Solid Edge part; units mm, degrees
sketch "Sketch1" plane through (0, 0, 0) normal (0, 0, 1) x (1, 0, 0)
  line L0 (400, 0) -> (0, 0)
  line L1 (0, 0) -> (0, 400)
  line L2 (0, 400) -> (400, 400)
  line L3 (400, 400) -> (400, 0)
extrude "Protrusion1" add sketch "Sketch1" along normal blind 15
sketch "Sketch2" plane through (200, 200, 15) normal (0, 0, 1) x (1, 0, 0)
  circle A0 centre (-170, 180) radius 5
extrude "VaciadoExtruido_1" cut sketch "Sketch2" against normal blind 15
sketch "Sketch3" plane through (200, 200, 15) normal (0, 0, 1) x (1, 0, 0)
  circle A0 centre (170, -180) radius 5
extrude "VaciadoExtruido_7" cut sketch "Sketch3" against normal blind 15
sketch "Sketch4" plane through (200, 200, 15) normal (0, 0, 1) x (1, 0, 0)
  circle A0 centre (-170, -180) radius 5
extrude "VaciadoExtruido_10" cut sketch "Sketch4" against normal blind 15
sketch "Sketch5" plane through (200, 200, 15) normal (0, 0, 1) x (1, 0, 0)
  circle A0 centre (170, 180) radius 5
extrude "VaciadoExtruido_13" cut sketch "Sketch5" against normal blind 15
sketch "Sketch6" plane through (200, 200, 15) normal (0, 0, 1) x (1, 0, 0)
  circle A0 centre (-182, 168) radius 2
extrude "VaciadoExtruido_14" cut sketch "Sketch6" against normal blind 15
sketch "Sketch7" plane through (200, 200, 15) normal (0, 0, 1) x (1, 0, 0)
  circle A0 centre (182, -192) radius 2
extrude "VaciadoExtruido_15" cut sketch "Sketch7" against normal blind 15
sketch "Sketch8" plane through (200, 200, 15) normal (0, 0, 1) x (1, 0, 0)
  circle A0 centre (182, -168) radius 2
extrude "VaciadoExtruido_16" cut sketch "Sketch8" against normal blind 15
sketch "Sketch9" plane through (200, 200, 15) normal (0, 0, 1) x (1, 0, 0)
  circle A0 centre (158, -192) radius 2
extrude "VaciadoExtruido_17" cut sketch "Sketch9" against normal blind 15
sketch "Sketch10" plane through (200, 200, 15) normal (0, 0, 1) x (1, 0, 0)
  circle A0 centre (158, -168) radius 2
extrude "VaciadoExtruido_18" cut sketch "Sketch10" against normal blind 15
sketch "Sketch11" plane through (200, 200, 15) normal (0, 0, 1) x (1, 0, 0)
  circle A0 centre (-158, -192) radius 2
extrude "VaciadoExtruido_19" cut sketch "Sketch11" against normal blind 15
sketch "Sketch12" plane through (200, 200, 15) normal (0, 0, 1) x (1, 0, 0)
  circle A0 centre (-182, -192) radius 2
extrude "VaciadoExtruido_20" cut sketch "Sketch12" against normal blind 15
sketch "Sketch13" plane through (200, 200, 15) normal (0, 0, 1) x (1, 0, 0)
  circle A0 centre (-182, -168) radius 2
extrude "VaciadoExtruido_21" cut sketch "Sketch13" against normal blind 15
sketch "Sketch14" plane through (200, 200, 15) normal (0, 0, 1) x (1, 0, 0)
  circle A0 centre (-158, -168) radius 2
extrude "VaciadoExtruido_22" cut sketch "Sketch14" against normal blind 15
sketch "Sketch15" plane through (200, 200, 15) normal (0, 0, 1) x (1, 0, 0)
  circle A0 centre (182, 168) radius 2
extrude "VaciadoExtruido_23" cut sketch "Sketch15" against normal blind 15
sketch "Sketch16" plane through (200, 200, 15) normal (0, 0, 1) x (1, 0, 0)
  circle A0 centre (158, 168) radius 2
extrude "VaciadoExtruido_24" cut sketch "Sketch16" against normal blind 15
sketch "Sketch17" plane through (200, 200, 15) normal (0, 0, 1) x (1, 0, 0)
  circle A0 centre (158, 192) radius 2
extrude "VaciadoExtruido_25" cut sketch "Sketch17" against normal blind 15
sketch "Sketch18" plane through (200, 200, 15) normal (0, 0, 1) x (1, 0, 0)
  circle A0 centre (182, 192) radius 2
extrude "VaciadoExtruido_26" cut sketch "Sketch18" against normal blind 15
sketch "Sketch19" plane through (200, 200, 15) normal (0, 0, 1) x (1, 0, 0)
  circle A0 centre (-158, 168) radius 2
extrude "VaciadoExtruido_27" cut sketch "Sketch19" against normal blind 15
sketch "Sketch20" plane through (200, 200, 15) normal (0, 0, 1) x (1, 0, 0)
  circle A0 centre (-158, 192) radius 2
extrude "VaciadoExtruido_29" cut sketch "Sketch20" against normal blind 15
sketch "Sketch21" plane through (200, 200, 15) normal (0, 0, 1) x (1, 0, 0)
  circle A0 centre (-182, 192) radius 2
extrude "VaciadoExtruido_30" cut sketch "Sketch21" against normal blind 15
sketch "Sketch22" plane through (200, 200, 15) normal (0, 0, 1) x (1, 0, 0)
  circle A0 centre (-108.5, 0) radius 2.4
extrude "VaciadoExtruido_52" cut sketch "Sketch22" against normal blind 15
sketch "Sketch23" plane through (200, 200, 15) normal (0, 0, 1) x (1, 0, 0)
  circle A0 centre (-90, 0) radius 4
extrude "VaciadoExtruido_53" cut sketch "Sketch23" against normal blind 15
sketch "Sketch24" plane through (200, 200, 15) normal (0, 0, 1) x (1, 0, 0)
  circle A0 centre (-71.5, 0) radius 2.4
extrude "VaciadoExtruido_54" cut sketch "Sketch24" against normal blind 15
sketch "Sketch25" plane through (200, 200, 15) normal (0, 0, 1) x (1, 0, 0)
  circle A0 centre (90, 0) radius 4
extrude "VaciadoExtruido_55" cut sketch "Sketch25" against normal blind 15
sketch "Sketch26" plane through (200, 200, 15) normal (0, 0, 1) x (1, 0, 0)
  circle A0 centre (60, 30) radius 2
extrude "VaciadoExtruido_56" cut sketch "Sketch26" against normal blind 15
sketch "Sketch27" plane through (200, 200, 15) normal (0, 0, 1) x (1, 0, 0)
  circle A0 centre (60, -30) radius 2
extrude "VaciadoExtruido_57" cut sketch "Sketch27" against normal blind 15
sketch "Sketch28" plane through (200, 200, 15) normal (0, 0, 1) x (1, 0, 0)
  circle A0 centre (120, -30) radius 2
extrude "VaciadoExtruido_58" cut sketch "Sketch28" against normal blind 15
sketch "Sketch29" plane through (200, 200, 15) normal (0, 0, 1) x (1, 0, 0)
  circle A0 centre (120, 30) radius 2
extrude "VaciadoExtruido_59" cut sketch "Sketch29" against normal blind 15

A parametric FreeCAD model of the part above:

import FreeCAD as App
import Part
import Sketcher
Q = App.Units.Quantity


def add_polygon(sketch, points):
    """Adds a closed chain of lines whose ends are joined by coincident constraints."""
    first, n = sketch.GeometryCount, len(points)
    for a, b in zip(points, points[1:] + points[:1]):
        sketch.addGeometry(Part.LineSegment(App.Vector(*a, 0), App.Vector(*b, 0)), False)
    for i in range(n):
        sketch.addConstraint(Sketcher.Constraint("Coincident", first + i, 2, first + (i + 1) % n, 1))

doc = App.newDocument("Part")
body = doc.addObject("PartDesign::Body", "Body")

sketch1 = body.newObject("Sketcher::SketchObject", "Sketch")
sketch1.AttachmentSupport = (doc.getObject("XY_Plane"), [""])
sketch1.MapMode = "FlatFace"
add_polygon(sketch1, [(0, 0), (400, 0), (400, 400), (0, 400)])
sketch1.addConstraint([
    Sketcher.Constraint("Horizontal", 0),
    Sketcher.Constraint("Vertical", 1),
    Sketcher.Constraint("Horizontal", 2),
    Sketcher.Constraint("Vertical", 3),
    Sketcher.Constraint("Coincident", 3, 2, -1, 1),
    Sketcher.Constraint("Equal", 2, 1),
    Sketcher.Constraint("DistanceX", 0, 1, 0, 2, Q("400 mm")),
])
pad1 = body.newObject("PartDesign::Pad", "Pad")
pad1.Profile = sketch1
pad1.Length = 15

sketch2 = body.newObject("Sketcher::SketchObject", "Sketch001")
sketch2.AttachmentSupport = (doc.getObject("XY_Plane"), [""])
sketch2.MapMode = "FlatFace"
sketch2.AttachmentOffset = App.Placement(App.Vector(0, 0, 15), App.Rotation())
sketch2.addGeometry(Part.Circle(App.Vector(30, 380, 0), App.Vector(0, 0, 1), 5), False)
sketch2.addConstraint([
    Sketcher.Constraint("Diameter", 0, Q("10 mm")),
    Sketcher.Constraint("DistanceX", -1, 1, 0, 3, Q("30 mm")),
    Sketcher.Constraint("DistanceY", -1, 1, 0, 3, Q("380 mm")),
])
pocket1 = body.newObject("PartDesign::Pocket", "Pocket")
pocket1.Profile = sketch2
pocket1.Length = 15

sketch3 = body.newObject("Sketcher::SketchObject", "Sketch002")
sketch3.AttachmentSupport = (doc.getObject("XY_Plane"), [""])
sketch3.MapMode = "FlatFace"
sketch3.AttachmentOffset = App.Placement(App.Vector(0, 0, 15), App.Rotation())
sketch3.addGeometry(Part.Circle(App.Vector(370, 20, 0), App.Vector(0, 0, 1), 5), False)
sketch3.addConstraint([
    Sketcher.Constraint("Diameter", 0, Q("10 mm")),
    Sketcher.Constraint("DistanceX", -1, 1, 0, 3, Q("370 mm")),
    Sketcher.Constraint("DistanceY", -1, 1, 0, 3, Q("20 mm")),
])
pocket2 = body.newObject("PartDesign::Pocket", "Pocket001")
pocket2.Profile = sketch3
pocket2.Length = 15

sketch4 = body.newObject("Sketcher::SketchObject", "Sketch003")
sketch4.AttachmentSupport = (doc.getObject("XY_Plane"), [""])
sketch4.MapMode = "FlatFace"
sketch4.AttachmentOffset = App.Placement(App.Vector(0, 0, 15), App.Rotation())
sketch4.addGeometry(Part.Circle(App.Vector(30, 20, 0), App.Vector(0, 0, 1), 5), False)
sketch4.addConstraint([
    Sketcher.Constraint("Diameter", 0, Q("10 mm")),
    Sketcher.Constraint("DistanceX", -1, 1, 0, 3, Q("30 mm")),
    Sketcher.Constraint("DistanceY", -1, 1, 0, 3, Q("20 mm")),
])
pocket3 = body.newObject("PartDesign::Pocket", "Pocket002")
pocket3.Profile = sketch4
pocket3.Length = 15

sketch5 = body.newObject("Sketcher::SketchObject", "Sketch004")
sketch5.AttachmentSupport = (doc.getObject("XY_Plane"), [""])
sketch5.MapMode = "FlatFace"
sketch5.AttachmentOffset = App.Placement(App.Vector(0, 0, 15), App.Rotation())
sketch5.addGeometry(Part.Circle(App.Vector(370, 380, 0), App.Vector(0, 0, 1), 5), False)
sketch5.addConstraint([
    Sketcher.Constraint("Diameter", 0, Q("10 mm")),
    Sketcher.Constraint("DistanceX", -1, 1, 0, 3, Q("370 mm")),
    Sketcher.Constraint("DistanceY", -1, 1, 0, 3, Q("380 mm")),
])
pocket4 = body.newObject("PartDesign::Pocket", "Pocket003")
pocket4.Profile = sketch5
pocket4.Length = 15

sketch6 = body.newObject("Sketcher::SketchObject", "Sketch005")
sketch6.AttachmentSupport = (doc.getObject("XY_Plane"), [""])
sketch6.MapMode = "FlatFace"
sketch6.AttachmentOffset = App.Placement(App.Vector(0, 0, 15), App.Rotation())
sketch6.addGeometry(Part.Circle(App.Vector(18, 368, 0), App.Vector(0, 0, 1), 2), False)
sketch6.addConstraint([
    Sketcher.Constraint("Diameter", 0, Q("4 mm")),
    Sketcher.Constraint("DistanceX", -1, 1, 0, 3, Q("18 mm")),
    Sketcher.Constraint("DistanceY", -1, 1, 0, 3, Q("368 mm")),
])
pocket5 = body.newObject("PartDesign::Pocket", "Pocket004")
pocket5.Profile = sketch6
pocket5.Length = 15

sketch7 = body.newObject("Sketcher::SketchObject", "Sketch006")
sketch7.AttachmentSupport = (doc.getObject("XY_Plane"), [""])
sketch7.MapMode = "FlatFace"
sketch7.AttachmentOffset = App.Placement(App.Vector(0, 0, 15), App.Rotation())
sketch7.addGeometry(Part.Circle(App.Vector(382, 8, 0), App.Vector(0, 0, 1), 2), False)
sketch7.addConstraint([
    Sketcher.Constraint("Diameter", 0, Q("4 mm")),
    Sketcher.Constraint("DistanceX", -1, 1, 0, 3, Q("382 mm")),
    Sketcher.Constraint("DistanceY", -1, 1, 0, 3, Q("8 mm")),
])
pocket6 = body.newObject("PartDesign::Pocket", "Pocket005")
pocket6.Profile = sketch7
pocket6.Length = 15

sketch8 = body.newObject("Sketcher::SketchObject", "Sketch007")
sketch8.AttachmentSupport = (doc.getObject("XY_Plane"), [""])
sketch8.MapMode = "FlatFace"
sketch8.AttachmentOffset = App.Placement(App.Vector(0, 0, 15), App.Rotation())
sketch8.addGeometry(Part.Circle(App.Vector(382, 32, 0), App.Vector(0, 0, 1), 2), False)
sketch8.addConstraint([
    Sketcher.Constraint("Diameter", 0, Q("4 mm")),
    Sketcher.Constraint("DistanceX", -1, 1, 0, 3, Q("382 mm")),
    Sketcher.Constraint("DistanceY", -1, 1, 0, 3, Q("32 mm")),
])
pocket7 = body.newObject("PartDesign::Pocket", "Pocket006")
pocket7.Profile = sketch8
pocket7.Length = 15

sketch9 = body.newObject("Sketcher::SketchObject", "Sketch008")
sketch9.AttachmentSupport = (doc.getObject("XY_Plane"), [""])
sketch9.MapMode = "FlatFace"
sketch9.AttachmentOffset = App.Placement(App.Vector(0, 0, 15), App.Rotation())
sketch9.addGeometry(Part.Circle(App.Vector(358, 8, 0), App.Vector(0, 0, 1), 2), False)
sketch9.addConstraint([
    Sketcher.Constraint("Diameter", 0, Q("4 mm")),
    Sketcher.Constraint("DistanceX", -1, 1, 0, 3, Q("358 mm")),
    Sketcher.Constraint("DistanceY", -1, 1, 0, 3, Q("8 mm")),
])
pocket8 = body.newObject("PartDesign::Pocket", "Pocket007")
pocket8.Profile = sketch9
pocket8.Length = 15

sketch10 = body.newObject("Sketcher::SketchObject", "Sketch009")
sketch10.AttachmentSupport = (doc.getObject("XY_Plane"), [""])
sketch10.MapMode = "FlatFace"
sketch10.AttachmentOffset = App.Placement(App.Vector(0, 0, 15), App.Rotation())
sketch10.addGeometry(Part.Circle(App.Vector(358, 32, 0), App.Vector(0, 0, 1), 2), False)
sketch10.addConstraint([
    Sketcher.Constraint("Diameter", 0, Q("4 mm")),
    Sketcher.Constraint("DistanceX", -1, 1, 0, 3, Q("358 mm")),
    Sketcher.Constraint("DistanceY", -1, 1, 0, 3, Q("32 mm")),
])
pocket9 = body.newObject("PartDesign::Pocket", "Pocket008")
pocket9.Profile = sketch10
pocket9.Length = 15

sketch11 = body.newObject("Sketcher::SketchObject", "Sketch010")
sketch11.AttachmentSupport = (doc.getObject("XY_Plane"), [""])
sketch11.MapMode = "FlatFace"
sketch11.AttachmentOffset = App.Placement(App.Vector(0, 0, 15), App.Rotation())
sketch11.addGeometry(Part.Circle(App.Vector(42, 8, 0), App.Vector(0, 0, 1), 2), False)
sketch11.addConstraint([
    Sketcher.Constraint("Diameter", 0, Q("4 mm")),
    Sketcher.Constraint("DistanceX", -1, 1, 0, 3, Q("42 mm")),
    Sketcher.Constraint("DistanceY", -1, 1, 0, 3, Q("8 mm")),
])
pocket10 = body.newObject("PartDesign::Pocket", "Pocket009")
pocket10.Profile = sketch11
pocket10.Length = 15

sketch12 = body.newObject("Sketcher::SketchObject", "Sketch011")
sketch12.AttachmentSupport = (doc.getObject("XY_Plane"), [""])
sketch12.MapMode = "FlatFace"
sketch12.AttachmentOffset = App.Placement(App.Vector(0, 0, 15), App.Rotation())
sketch12.addGeometry(Part.Circle(App.Vector(18, 8, 0), App.Vector(0, 0, 1), 2), False)
sketch12.addConstraint([
    Sketcher.Constraint("Diameter", 0, Q("4 mm")),
    Sketcher.Constraint("DistanceX", -1, 1, 0, 3, Q("18 mm")),
    Sketcher.Constraint("DistanceY", -1, 1, 0, 3, Q("8 mm")),
])
pocket11 = body.newObject("PartDesign::Pocket", "Pocket010")
pocket11.Profile = sketch12
pocket11.Length = 15

sketch13 = body.newObject("Sketcher::SketchObject", "Sketch012")
sketch13.AttachmentSupport = (doc.getObject("XY_Plane"), [""])
sketch13.MapMode = "FlatFace"
sketch13.AttachmentOffset = App.Placement(App.Vector(0, 0, 15), App.Rotation())
sketch13.addGeometry(Part.Circle(App.Vector(18, 32, 0), App.Vector(0, 0, 1), 2), False)
sketch13.addConstraint([
    Sketcher.Constraint("Diameter", 0, Q("4 mm")),
    Sketcher.Constraint("DistanceX", -1, 1, 0, 3, Q("18 mm")),
    Sketcher.Constraint("DistanceY", -1, 1, 0, 3, Q("32 mm")),
])
pocket12 = body.newObject("PartDesign::Pocket", "Pocket011")
pocket12.Profile = sketch13
pocket12.Length = 15

sketch14 = body.newObject("Sketcher::SketchObject", "Sketch013")
sketch14.AttachmentSupport = (doc.getObject("XY_Plane"), [""])
sketch14.MapMode = "FlatFace"
sketch14.AttachmentOffset = App.Placement(App.Vector(0, 0, 15), App.Rotation())
sketch14.addGeometry(Part.Circle(App.Vector(42, 32, 0), App.Vector(0, 0, 1), 2), False)
sketch14.addConstraint([
    Sketcher.Constraint("Diameter", 0, Q("4 mm")),
    Sketcher.Constraint("DistanceX", -1, 1, 0, 3, Q("42 mm")),
    Sketcher.Constraint("DistanceY", -1, 1, 0, 3, Q("32 mm")),
])
pocket13 = body.newObject("PartDesign::Pocket", "Pocket012")
pocket13.Profile = sketch14
pocket13.Length = 15

sketch15 = body.newObject("Sketcher::SketchObject", "Sketch014")
sketch15.AttachmentSupport = (doc.getObject("XY_Plane"), [""])
sketch15.MapMode = "FlatFace"
sketch15.AttachmentOffset = App.Placement(App.Vector(0, 0, 15), App.Rotation())
sketch15.addGeometry(Part.Circle(App.Vector(382, 368, 0), App.Vector(0, 0, 1), 2), False)
sketch15.addConstraint([
    Sketcher.Constraint("Diameter", 0, Q("4 mm")),
    Sketcher.Constraint("DistanceX", -1, 1, 0, 3, Q("382 mm")),
    Sketcher.Constraint("DistanceY", -1, 1, 0, 3, Q("368 mm")),
])
pocket14 = body.newObject("PartDesign::Pocket", "Pocket013")
pocket14.Profile = sketch15
pocket14.Length = 15

sketch16 = body.newObject("Sketcher::SketchObject", "Sketch015")
sketch16.AttachmentSupport = (doc.getObject("XY_Plane"), [""])
sketch16.MapMode = "FlatFace"
sketch16.AttachmentOffset = App.Placement(App.Vector(0, 0, 15), App.Rotation())
sketch16.addGeometry(Part.Circle(App.Vector(358, 368, 0), App.Vector(0, 0, 1), 2), False)
sketch16.addConstraint([
    Sketcher.Constraint("Diameter", 0, Q("4 mm")),
    Sketcher.Constraint("DistanceX", -1, 1, 0, 3, Q("358 mm")),
    Sketcher.Constraint("DistanceY", -1, 1, 0, 3, Q("368 mm")),
])
pocket15 = body.newObject("PartDesign::Pocket", "Pocket014")
pocket15.Profile = sketch16
pocket15.Length = 15

sketch17 = body.newObject("Sketcher::SketchObject", "Sketch016")
sketch17.AttachmentSupport = (doc.getObject("XY_Plane"), [""])
sketch17.MapMode = "FlatFace"
sketch17.AttachmentOffset = App.Placement(App.Vector(0, 0, 15), App.Rotation())
sketch17.addGeometry(Part.Circle(App.Vector(358, 392, 0), App.Vector(0, 0, 1), 2), False)
sketch17.addConstraint([
    Sketcher.Constraint("Diameter", 0, Q("4 mm")),
    Sketcher.Constraint("DistanceX", -1, 1, 0, 3, Q("358 mm")),
    Sketcher.Constraint("DistanceY", -1, 1, 0, 3, Q("392 mm")),
])
pocket16 = body.newObject("PartDesign::Pocket", "Pocket015")
pocket16.Profile = sketch17
pocket16.Length = 15

sketch18 = body.newObject("Sketcher::SketchObject", "Sketch017")
sketch18.AttachmentSupport = (doc.getObject("XY_Plane"), [""])
sketch18.MapMode = "FlatFace"
sketch18.AttachmentOffset = App.Placement(App.Vector(0, 0, 15), App.Rotation())
sketch18.addGeometry(Part.Circle(App.Vector(382, 392, 0), App.Vector(0, 0, 1), 2), False)
sketch18.addConstraint([
    Sketcher.Constraint("Diameter", 0, Q("4 mm")),
    Sketcher.Constraint("DistanceX", -1, 1, 0, 3, Q("382 mm")),
    Sketcher.Constraint("DistanceY", -1, 1, 0, 3, Q("392 mm")),
])
pocket17 = body.newObject("PartDesign::Pocket", "Pocket016")
pocket17.Profile = sketch18
pocket17.Length = 15

sketch19 = body.newObject("Sketcher::SketchObject", "Sketch018")
sketch19.AttachmentSupport = (doc.getObject("XY_Plane"), [""])
sketch19.MapMode = "FlatFace"
sketch19.AttachmentOffset = App.Placement(App.Vector(0, 0, 15), App.Rotation())
sketch19.addGeometry(Part.Circle(App.Vector(42, 368, 0), App.Vector(0, 0, 1), 2), False)
sketch19.addConstraint([
    Sketcher.Constraint("Diameter", 0, Q("4 mm")),
    Sketcher.Constraint("DistanceX", -1, 1, 0, 3, Q("42 mm")),
    Sketcher.Constraint("DistanceY", -1, 1, 0, 3, Q("368 mm")),
])
pocket18 = body.newObject("PartDesign::Pocket", "Pocket017")
pocket18.Profile = sketch19
pocket18.Length = 15

sketch20 = body.newObject("Sketcher::SketchObject", "Sketch019")
sketch20.AttachmentSupport = (doc.getObject("XY_Plane"), [""])
sketch20.MapMode = "FlatFace"
sketch20.AttachmentOffset = App.Placement(App.Vector(0, 0, 15), App.Rotation())
sketch20.addGeometry(Part.Circle(App.Vector(42, 392, 0), App.Vector(0, 0, 1), 2), False)
sketch20.addConstraint([
    Sketcher.Constraint("Diameter", 0, Q("4 mm")),
    Sketcher.Constraint("DistanceX", -1, 1, 0, 3, Q("42 mm")),
    Sketcher.Constraint("DistanceY", -1, 1, 0, 3, Q("392 mm")),
])
pocket19 = body.newObject("PartDesign::Pocket", "Pocket018")
pocket19.Profile = sketch20
pocket19.Length = 15

sketch21 = body.newObject("Sketcher::SketchObject", "Sketch020")
sketch21.AttachmentSupport = (doc.getObject("XY_Plane"), [""])
sketch21.MapMode = "FlatFace"
sketch21.AttachmentOffset = App.Placement(App.Vector(0, 0, 15), App.Rotation())
sketch21.addGeometry(Part.Circle(App.Vector(18, 392, 0), App.Vector(0, 0, 1), 2), False)
sketch21.addConstraint([
    Sketcher.Constraint("Diameter", 0, Q("4 mm")),
    Sketcher.Constraint("DistanceX", -1, 1, 0, 3, Q("18 mm")),
    Sketcher.Constraint("DistanceY", -1, 1, 0, 3, Q("392 mm")),
])
pocket20 = body.newObject("PartDesign::Pocket", "Pocket019")
pocket20.Profile = sketch21
pocket20.Length = 15

sketch22 = body.newObject("Sketcher::SketchObject", "Sketch021")
sketch22.AttachmentSupport = (doc.getObject("XY_Plane"), [""])
sketch22.MapMode = "FlatFace"
sketch22.AttachmentOffset = App.Placement(App.Vector(0, 0, 15), App.Rotation())
sketch22.addGeometry(Part.Circle(App.Vector(91.5, 200, 0), App.Vector(0, 0, 1), 2.4), False)
sketch22.addConstraint([
    Sketcher.Constraint("Diameter", 0, Q("4.8 mm")),
    Sketcher.Constraint("DistanceY", -1, 1, 0, 3, Q("200 mm")),
    Sketcher.Constraint("DistanceX", -1, 1, 0, 3, Q("91.5 mm")),
])
pocket21 = body.newObject("PartDesign::Pocket", "Pocket020")
pocket21.Profile = sketch22
pocket21.Length = 15

sketch23 = body.newObject("Sketcher::SketchObject", "Sketch022")
sketch23.AttachmentSupport = (doc.getObject("XY_Plane"), [""])
sketch23.MapMode = "FlatFace"
sketch23.AttachmentOffset = App.Placement(App.Vector(0, 0, 15), App.Rotation())
sketch23.addGeometry(Part.Circle(App.Vector(110, 200, 0), App.Vector(0, 0, 1), 4), False)
sketch23.addConstraint([
    Sketcher.Constraint("Diameter", 0, Q("8 mm")),
    Sketcher.Constraint("DistanceX", -1, 1, 0, 3, Q("110 mm")),
    Sketcher.Constraint("DistanceY", -1, 1, 0, 3, Q("200 mm")),
])
pocket22 = body.newObject("PartDesign::Pocket", "Pocket021")
pocket22.Profile = sketch23
pocket22.Length = 15

sketch24 = body.newObject("Sketcher::SketchObject", "Sketch023")
sketch24.AttachmentSupport = (doc.getObject("XY_Plane"), [""])
sketch24.MapMode = "FlatFace"
sketch24.AttachmentOffset = App.Placement(App.Vector(0, 0, 15), App.Rotation())
sketch24.addGeometry(Part.Circle(App.Vector(128.5, 200, 0), App.Vector(0, 0, 1), 2.4), False)
sketch24.addConstraint([
    Sketcher.Constraint("Diameter", 0, Q("4.8 mm")),
    Sketcher.Constraint("DistanceY", -1, 1, 0, 3, Q("200 mm")),
    Sketcher.Constraint("DistanceX", -1, 1, 0, 3, Q("128.5 mm")),
])
pocket23 = body.newObject("PartDesign::Pocket", "Pocket022")
pocket23.Profile = sketch24
pocket23.Length = 15

sketch25 = body.newObject("Sketcher::SketchObject", "Sketch024")
sketch25.AttachmentSupport = (doc.getObject("XY_Plane"), [""])
sketch25.MapMode = "FlatFace"
sketch25.AttachmentOffset = App.Placement(App.Vector(0, 0, 15), App.Rotation())
sketch25.addGeometry(Part.Circle(App.Vector(290, 200, 0), App.Vector(0, 0, 1), 4), False)
sketch25.addConstraint([
    Sketcher.Constraint("Diameter", 0, Q("8 mm")),
    Sketcher.Constraint("DistanceX", -1, 1, 0, 3, Q("290 mm")),
    Sketcher.Constraint("DistanceY", -1, 1, 0, 3, Q("200 mm")),
])
pocket24 = body.newObject("PartDesign::Pocket", "Pocket023")
pocket24.Profile = sketch25
pocket24.Length = 15

sketch26 = body.newObject("Sketcher::SketchObject", "Sketch025")
sketch26.AttachmentSupport = (doc.getObject("XY_Plane"), [""])
sketch26.MapMode = "FlatFace"
sketch26.AttachmentOffset = App.Placement(App.Vector(0, 0, 15), App.Rotation())
sketch26.addGeometry(Part.Circle(App.Vector(260, 230, 0), App.Vector(0, 0, 1), 2), False)
sketch26.addConstraint([
    Sketcher.Constraint("Diameter", 0, Q("4 mm")),
    Sketcher.Constraint("DistanceX", -1, 1, 0, 3, Q("260 mm")),
    Sketcher.Constraint("DistanceY", -1, 1, 0, 3, Q("230 mm")),
])
pocket25 = body.newObject("PartDesign::Pocket", "Pocket024")
pocket25.Profile = sketch26
pocket25.Length = 15

sketch27 = body.newObject("Sketcher::SketchObject", "Sketch026")
sketch27.AttachmentSupport = (doc.getObject("XY_Plane"), [""])
sketch27.MapMode = "FlatFace"
sketch27.AttachmentOffset = App.Placement(App.Vector(0, 0, 15), App.Rotation())
sketch27.addGeometry(Part.Circle(App.Vector(260, 170, 0), App.Vector(0, 0, 1), 2), False)
sketch27.addConstraint([
    Sketcher.Constraint("Diameter", 0, Q("4 mm")),
    Sketcher.Constraint("DistanceX", -1, 1, 0, 3, Q("260 mm")),
    Sketcher.Constraint("DistanceY", -1, 1, 0, 3, Q("170 mm")),
])
pocket26 = body.newObject("PartDesign::Pocket", "Pocket025")
pocket26.Profile = sketch27
pocket26.Length = 15

sketch28 = body.newObject("Sketcher::SketchObject", "Sketch027")
sketch28.AttachmentSupport = (doc.getObject("XY_Plane"), [""])
sketch28.MapMode = "FlatFace"
sketch28.AttachmentOffset = App.Placement(App.Vector(0, 0, 15), App.Rotation())
sketch28.addGeometry(Part.Circle(App.Vector(320, 170, 0), App.Vector(0, 0, 1), 2), False)
sketch28.addConstraint([
    Sketcher.Constraint("Diameter", 0, Q("4 mm")),
    Sketcher.Constraint("DistanceX", -1, 1, 0, 3, Q("320 mm")),
    Sketcher.Constraint("DistanceY", -1, 1, 0, 3, Q("170 mm")),
])
pocket27 = body.newObject("PartDesign::Pocket", "Pocket026")
pocket27.Profile = sketch28
pocket27.Length = 15

sketch29 = body.newObject("Sketcher::SketchObject", "Sketch028")
sketch29.AttachmentSupport = (doc.getObject("XY_Plane"), [""])
sketch29.MapMode = "FlatFace"
sketch29.AttachmentOffset = App.Placement(App.Vector(0, 0, 15), App.Rotation())
sketch29.addGeometry(Part.Circle(App.Vector(320, 230, 0), App.Vector(0, 0, 1), 2), False)
sketch29.addConstraint([
    Sketcher.Constraint("Diameter", 0, Q("4 mm")),
    Sketcher.Constraint("DistanceX", -1, 1, 0, 3, Q("320 mm")),
    Sketcher.Constraint("DistanceY", -1, 1, 0, 3, Q("230 mm")),
])
pocket28 = body.newObject("PartDesign::Pocket", "Pocket027")
pocket28.Profile = sketch29
pocket28.Length = 15

doc.recompute()
